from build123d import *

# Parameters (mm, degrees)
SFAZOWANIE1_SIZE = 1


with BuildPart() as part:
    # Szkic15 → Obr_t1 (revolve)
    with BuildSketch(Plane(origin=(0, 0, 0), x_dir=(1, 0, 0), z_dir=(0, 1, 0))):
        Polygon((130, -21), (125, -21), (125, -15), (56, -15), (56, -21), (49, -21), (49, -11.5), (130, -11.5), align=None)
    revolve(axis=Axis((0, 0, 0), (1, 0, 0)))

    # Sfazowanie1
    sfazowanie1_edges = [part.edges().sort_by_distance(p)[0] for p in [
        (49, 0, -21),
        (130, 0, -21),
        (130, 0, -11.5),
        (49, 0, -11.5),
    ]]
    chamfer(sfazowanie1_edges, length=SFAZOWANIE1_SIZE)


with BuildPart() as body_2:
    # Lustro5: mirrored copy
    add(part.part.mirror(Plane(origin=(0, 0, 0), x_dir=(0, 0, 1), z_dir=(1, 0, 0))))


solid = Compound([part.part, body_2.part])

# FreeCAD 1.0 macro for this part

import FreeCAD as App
import Part
import Sketcher


def edges_at(feature, points):
    """Names of the edges that pass closest to the given points."""
    edges = feature.Shape.Edges
    near = lambda p: min(range(len(edges)), key=lambda i: edges[i].distToShape(Part.Vertex(*p))[0])
    return sorted({f"Edge{near(p) + 1}" for p in points})

doc = App.newDocument("Part")
body = doc.addObject("PartDesign::Body", "Body")

sketch1 = doc.addObject("Sketcher::SketchObject", "Sketch")
body.addObject(sketch1)
sketch1.AttachmentSupport = (doc.XZ_Plane, [""])
sketch1.MapMode = "FlatFace"
sketch1.addGeometry([
    Part.LineSegment(App.Vector(125, 21, 0), App.Vector(130, 21, 0)),
    Part.LineSegment(App.Vector(130, 21, 0), App.Vector(130, 11.5, 0)),
    Part.LineSegment(App.Vector(130, 11.5, 0), App.Vector(49, 11.5, 0)),
    Part.LineSegment(App.Vector(49, 11.5, 0), App.Vector(49, 21, 0)),
    Part.LineSegment(App.Vector(49, 21, 0), App.Vector(56, 21, 0)),
    Part.LineSegment(App.Vector(56, 21, 0), App.Vector(56, 15, 0)),
    Part.LineSegment(App.Vector(56, 15, 0), App.Vector(125, 15, 0)),
    Part.LineSegment(App.Vector(125, 15, 0), App.Vector(125, 21, 0)),
], False)
sketch1.addConstraint([
    Sketcher.Constraint("Coincident", 0, 2, 1, 1),
    Sketcher.Constraint("Coincident", 1, 2, 2, 1),
    Sketcher.Constraint("Coincident", 2, 2, 3, 1),
    Sketcher.Constraint("Coincident", 3, 2, 4, 1),
    Sketcher.Constraint("Coincident", 4, 2, 5, 1),
    Sketcher.Constraint("Coincident", 5, 2, 6, 1),
    Sketcher.Constraint("Coincident", 6, 2, 7, 1),
    Sketcher.Constraint("Coincident", 7, 2, 0, 1),
    Sketcher.Constraint("Horizontal", 0),
    Sketcher.Constraint("Vertical", 1),
    Sketcher.Constraint("Horizontal", 2),
    Sketcher.Constraint("Vertical", 3),
    Sketcher.Constraint("Horizontal", 4),
    Sketcher.Constraint("Vertical", 5),
    Sketcher.Constraint("Horizontal", 6),
    Sketcher.Constraint("Vertical", 7),
    Sketcher.Constraint("Horizontal", 0, 2, 3, 2),
    Sketcher.Constraint("DistanceX", 0, 1, 0, 2, 5.0),
    Sketcher.Constraint("DistanceX", 2, 2, 2, 1, 81.0),
    Sketcher.Constraint("DistanceX", 4, 1, 4, 2, 7.0),
    Sketcher.Constraint("DistanceY", 5, 2, 5, 1, 6.0),
    Sketcher.Constraint("DistanceY", 1, 2, 1, 1, 9.5),
    Sketcher.Constraint("DistanceX", -1, 1, 0, 2, 130.0),
    Sketcher.Constraint("DistanceY", -1, 1, 0, 2, 21.0),
])
revolution = doc.addObject("PartDesign::Revolution", "Revolution")
body.addObject(revolution)
revolution.Profile = sketch1
revolution.ReferenceAxis = (sketch1, ["H_Axis"])
revolution.Angle = 360
doc.recompute()

chamfer = doc.addObject("PartDesign::Chamfer", "Chamfer")
body.addObject(chamfer)
chamfer.Base = (revolution, edges_at(revolution, [
    (49, 0, -21),
    (130, 0, -21),
    (130, 0, -11.5),
    (49, 0, -11.5),
]))
chamfer.Size = 1
body2 = doc.addObject("PartDesign::Body", "Body001")
doc.recompute()

mirroring = doc.addObject("Part::Mirroring", "Mirroring")
mirroring.Source = body
mirroring.Base = App.Vector(0, 0, 0)
mirroring.Normal = App.Vector(1, 0, 0)
body2.BaseFeature = mirroring
doc.recompute()
mirroring.Visibility = False

doc.recompute()
